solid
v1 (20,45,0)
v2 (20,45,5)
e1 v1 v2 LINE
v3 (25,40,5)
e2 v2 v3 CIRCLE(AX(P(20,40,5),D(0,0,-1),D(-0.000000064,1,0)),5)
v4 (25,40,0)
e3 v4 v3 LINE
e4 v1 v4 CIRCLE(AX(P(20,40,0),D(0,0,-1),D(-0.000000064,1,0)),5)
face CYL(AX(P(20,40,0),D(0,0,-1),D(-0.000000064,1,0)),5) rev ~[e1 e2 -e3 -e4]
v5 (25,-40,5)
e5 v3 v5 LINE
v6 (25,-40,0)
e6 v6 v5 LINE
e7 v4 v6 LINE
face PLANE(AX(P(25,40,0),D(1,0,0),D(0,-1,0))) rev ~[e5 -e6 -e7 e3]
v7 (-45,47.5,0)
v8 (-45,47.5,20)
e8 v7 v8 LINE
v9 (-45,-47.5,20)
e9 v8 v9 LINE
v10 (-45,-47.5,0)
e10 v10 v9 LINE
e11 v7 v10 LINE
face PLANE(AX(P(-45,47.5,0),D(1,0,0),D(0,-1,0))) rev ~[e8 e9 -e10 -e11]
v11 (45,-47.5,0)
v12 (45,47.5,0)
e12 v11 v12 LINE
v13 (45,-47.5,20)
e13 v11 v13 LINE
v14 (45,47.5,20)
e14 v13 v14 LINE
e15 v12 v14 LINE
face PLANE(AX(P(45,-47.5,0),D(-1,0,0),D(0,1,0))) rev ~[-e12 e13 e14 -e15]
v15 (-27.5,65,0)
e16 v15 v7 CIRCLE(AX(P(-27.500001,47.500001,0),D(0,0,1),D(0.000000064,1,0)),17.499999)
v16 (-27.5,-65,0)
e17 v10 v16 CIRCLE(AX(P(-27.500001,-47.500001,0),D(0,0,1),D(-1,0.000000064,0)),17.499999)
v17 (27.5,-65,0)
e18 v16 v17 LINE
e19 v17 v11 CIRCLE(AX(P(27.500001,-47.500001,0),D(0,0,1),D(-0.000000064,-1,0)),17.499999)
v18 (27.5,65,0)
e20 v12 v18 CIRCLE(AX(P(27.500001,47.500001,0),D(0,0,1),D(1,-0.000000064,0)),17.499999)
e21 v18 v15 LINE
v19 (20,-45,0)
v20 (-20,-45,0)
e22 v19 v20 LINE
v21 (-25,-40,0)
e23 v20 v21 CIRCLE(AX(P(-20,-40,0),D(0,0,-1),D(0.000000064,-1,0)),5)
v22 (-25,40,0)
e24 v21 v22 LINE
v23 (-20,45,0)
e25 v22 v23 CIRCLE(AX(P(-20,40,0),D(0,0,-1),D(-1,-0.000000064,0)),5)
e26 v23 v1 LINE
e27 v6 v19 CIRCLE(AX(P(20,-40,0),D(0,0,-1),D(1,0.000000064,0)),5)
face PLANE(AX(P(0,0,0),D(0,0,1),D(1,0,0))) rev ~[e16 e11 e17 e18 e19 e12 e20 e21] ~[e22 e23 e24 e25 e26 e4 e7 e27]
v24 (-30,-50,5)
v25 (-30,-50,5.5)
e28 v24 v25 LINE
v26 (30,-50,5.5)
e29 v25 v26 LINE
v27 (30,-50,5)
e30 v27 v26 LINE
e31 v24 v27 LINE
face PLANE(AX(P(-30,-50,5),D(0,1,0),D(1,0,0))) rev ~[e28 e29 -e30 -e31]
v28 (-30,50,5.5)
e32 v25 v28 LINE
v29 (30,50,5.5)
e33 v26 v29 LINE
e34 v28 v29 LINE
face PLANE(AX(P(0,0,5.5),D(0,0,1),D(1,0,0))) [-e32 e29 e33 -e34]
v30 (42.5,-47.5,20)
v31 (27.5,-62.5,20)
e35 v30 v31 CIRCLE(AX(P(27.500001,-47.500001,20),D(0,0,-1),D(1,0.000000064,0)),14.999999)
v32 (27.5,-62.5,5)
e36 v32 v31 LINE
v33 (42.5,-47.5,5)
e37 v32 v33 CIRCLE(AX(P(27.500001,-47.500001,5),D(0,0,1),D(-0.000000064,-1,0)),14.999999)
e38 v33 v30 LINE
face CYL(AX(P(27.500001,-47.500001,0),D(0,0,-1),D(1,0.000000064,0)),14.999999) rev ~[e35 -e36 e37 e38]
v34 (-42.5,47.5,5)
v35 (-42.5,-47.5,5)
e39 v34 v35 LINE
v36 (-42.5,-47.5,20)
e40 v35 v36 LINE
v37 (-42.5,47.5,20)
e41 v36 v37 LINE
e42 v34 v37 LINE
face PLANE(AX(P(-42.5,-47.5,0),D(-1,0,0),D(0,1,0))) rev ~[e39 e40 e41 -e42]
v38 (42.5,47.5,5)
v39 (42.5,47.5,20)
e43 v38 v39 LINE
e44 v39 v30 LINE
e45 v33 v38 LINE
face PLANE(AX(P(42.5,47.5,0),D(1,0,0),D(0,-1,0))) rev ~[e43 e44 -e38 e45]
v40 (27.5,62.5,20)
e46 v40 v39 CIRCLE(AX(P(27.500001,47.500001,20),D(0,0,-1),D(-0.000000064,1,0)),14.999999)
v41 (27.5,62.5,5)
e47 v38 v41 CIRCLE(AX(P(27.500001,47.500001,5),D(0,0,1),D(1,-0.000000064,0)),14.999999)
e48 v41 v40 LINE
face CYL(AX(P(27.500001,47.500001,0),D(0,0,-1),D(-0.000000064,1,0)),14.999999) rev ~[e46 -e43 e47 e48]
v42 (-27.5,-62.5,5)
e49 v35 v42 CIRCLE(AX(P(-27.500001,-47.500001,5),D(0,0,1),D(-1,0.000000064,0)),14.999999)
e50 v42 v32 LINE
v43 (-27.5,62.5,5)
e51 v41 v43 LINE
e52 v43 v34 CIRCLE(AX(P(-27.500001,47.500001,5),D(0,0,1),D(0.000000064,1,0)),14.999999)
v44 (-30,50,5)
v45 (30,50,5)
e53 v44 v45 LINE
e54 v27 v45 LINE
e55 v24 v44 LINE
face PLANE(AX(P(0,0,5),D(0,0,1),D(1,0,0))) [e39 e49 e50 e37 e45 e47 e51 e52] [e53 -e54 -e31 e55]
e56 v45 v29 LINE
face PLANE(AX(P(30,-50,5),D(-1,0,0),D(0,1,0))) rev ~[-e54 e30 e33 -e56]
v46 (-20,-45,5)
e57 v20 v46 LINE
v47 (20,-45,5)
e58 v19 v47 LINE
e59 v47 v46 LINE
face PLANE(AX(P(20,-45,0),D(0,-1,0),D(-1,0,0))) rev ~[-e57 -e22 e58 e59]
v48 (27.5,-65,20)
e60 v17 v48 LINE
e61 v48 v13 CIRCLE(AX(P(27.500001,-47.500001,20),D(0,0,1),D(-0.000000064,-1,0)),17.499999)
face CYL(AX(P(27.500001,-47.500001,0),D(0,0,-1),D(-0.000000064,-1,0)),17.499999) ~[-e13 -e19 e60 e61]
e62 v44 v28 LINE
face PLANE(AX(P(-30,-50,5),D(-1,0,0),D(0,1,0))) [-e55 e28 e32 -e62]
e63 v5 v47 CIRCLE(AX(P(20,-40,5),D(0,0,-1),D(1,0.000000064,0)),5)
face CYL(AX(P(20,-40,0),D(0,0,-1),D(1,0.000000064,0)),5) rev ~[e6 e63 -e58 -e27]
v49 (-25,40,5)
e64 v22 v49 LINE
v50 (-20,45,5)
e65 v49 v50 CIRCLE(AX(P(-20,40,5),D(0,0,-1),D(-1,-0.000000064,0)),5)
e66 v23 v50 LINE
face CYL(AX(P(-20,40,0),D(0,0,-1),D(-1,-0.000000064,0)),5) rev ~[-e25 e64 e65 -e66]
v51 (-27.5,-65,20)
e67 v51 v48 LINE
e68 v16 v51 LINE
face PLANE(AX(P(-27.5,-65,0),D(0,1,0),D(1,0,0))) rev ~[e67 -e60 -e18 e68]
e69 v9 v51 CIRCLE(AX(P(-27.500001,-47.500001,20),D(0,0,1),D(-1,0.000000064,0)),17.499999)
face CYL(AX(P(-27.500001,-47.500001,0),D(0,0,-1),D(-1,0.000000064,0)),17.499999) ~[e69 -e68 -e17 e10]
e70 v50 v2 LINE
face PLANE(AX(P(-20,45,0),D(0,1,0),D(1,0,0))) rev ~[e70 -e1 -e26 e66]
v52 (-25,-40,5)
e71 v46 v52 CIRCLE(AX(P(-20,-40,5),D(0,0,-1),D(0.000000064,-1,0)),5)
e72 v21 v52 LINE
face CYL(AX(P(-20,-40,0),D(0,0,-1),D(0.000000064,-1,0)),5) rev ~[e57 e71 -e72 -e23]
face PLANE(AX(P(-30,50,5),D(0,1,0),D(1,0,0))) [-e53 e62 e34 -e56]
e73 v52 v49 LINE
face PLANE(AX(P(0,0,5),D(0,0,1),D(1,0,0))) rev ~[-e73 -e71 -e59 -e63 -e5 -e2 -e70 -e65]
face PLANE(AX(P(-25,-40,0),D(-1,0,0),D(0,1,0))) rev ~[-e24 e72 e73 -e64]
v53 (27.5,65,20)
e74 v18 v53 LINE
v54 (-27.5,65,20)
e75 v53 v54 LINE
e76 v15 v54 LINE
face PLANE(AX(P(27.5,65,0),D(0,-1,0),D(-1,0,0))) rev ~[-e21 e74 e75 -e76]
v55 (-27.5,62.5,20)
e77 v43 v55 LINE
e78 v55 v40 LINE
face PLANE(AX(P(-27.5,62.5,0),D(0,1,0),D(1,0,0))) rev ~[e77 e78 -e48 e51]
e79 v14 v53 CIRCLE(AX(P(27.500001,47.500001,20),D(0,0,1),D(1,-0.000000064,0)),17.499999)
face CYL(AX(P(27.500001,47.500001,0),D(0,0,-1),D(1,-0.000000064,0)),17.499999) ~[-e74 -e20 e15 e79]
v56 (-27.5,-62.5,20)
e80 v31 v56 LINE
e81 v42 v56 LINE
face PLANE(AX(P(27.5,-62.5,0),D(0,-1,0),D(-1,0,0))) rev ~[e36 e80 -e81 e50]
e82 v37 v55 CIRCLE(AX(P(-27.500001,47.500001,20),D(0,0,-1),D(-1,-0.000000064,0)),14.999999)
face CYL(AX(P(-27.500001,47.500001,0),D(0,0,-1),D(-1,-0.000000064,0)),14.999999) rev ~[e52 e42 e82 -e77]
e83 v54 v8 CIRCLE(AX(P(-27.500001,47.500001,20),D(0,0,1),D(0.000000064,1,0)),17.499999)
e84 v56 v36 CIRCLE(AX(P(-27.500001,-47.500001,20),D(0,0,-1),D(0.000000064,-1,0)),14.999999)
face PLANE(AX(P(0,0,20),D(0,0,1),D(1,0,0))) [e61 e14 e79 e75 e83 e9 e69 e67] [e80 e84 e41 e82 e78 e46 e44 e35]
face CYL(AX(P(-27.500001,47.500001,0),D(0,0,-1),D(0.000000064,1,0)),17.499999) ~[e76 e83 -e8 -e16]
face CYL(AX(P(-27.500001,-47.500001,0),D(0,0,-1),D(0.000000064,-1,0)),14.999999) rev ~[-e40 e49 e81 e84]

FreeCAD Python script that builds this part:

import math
import FreeCAD as App
import Part
import Sketcher


def add_polygon(sketch, points):
    """Adds a closed chain of lines whose ends are joined by coincident constraints."""
    first, n = sketch.GeometryCount, len(points)
    for a, b in zip(points, points[1:] + points[:1]):
        sketch.addGeometry(Part.LineSegment(App.Vector(*a, 0), App.Vector(*b, 0)), False)
    for i in range(n):
        sketch.addConstraint(Sketcher.Constraint("Coincident", first + i, 2, first + (i + 1) % n, 1))

doc = App.newDocument("Part")
body = doc.addObject("PartDesign::Body", "Body")

sketch1 = body.newObject("Sketcher::SketchObject", "Sketch")
sketch1.AttachmentSupport = (doc.getObject("XY_Plane"), [""])
sketch1.MapMode = "FlatFace"
sketch1.addGeometry([
    Part.LineSegment(App.Vector(45, -48, 0), App.Vector(45, 48, 0)),
    Part.ArcOfCircle(Part.Circle(App.Vector(28, 48, 0), App.Vector(0, 0, 1), 17), math.radians(0), math.radians(90)),
    Part.LineSegment(App.Vector(28, 65, 0), App.Vector(-28, 65, 0)),
    Part.ArcOfCircle(Part.Circle(App.Vector(-28, 48, 0), App.Vector(0, 0, 1), 17), math.radians(90), math.radians(180)),
    Part.LineSegment(App.Vector(-45, 48, 0), App.Vector(-45, -48, 0)),
    Part.ArcOfCircle(Part.Circle(App.Vector(-28, -48, 0), App.Vector(0, 0, 1), 17), math.radians(180), math.radians(270)),
    Part.LineSegment(App.Vector(-28, -65, 0), App.Vector(28, -65, 0)),
    Part.ArcOfCircle(Part.Circle(App.Vector(28, -48, 0), App.Vector(0, 0, 1), 17), math.radians(-90), math.radians(0)),
    Part.ArcOfCircle(Part.Circle(App.Vector(-28, 48, 0), App.Vector(0, 0, 1), 15), math.radians(90), math.radians(180)),
    Part.LineSegment(App.Vector(-28, 62, 0), App.Vector(28, 62, 0)),
    Part.ArcOfCircle(Part.Circle(App.Vector(28, 48, 0), App.Vector(0, 0, 1), 15), math.radians(0), math.radians(90)),
    Part.LineSegment(App.Vector(42, 48, 0), App.Vector(42, -48, 0)),
    Part.ArcOfCircle(Part.Circle(App.Vector(28, -48, 0), App.Vector(0, 0, 1), 15), math.radians(-90), math.radians(0)),
    Part.LineSegment(App.Vector(28, -62, 0), App.Vector(-28, -62, 0)),
    Part.ArcOfCircle(Part.Circle(App.Vector(-28, -48, 0), App.Vector(0, 0, 1), 15), math.radians(180), math.radians(270)),
    Part.LineSegment(App.Vector(-42, -48, 0), App.Vector(-42, 48, 0)),
], False)
sketch1.addConstraint([
    Sketcher.Constraint("Tangent", 0, 2, 1, 1),
    Sketcher.Constraint("Tangent", 1, 2, 2, 1),
    Sketcher.Constraint("Tangent", 2, 2, 3, 1),
    Sketcher.Constraint("Tangent", 3, 2, 4, 1),
    Sketcher.Constraint("Tangent", 4, 2, 5, 1),
    Sketcher.Constraint("Tangent", 5, 2, 6, 1),
    Sketcher.Constraint("Tangent", 6, 2, 7, 1),
    Sketcher.Constraint("Tangent", 7, 2, 0, 1),
    Sketcher.Constraint("Tangent", 8, 1, 9, 1),
    Sketcher.Constraint("Tangent", 9, 2, 10, 2),
    Sketcher.Constraint("Tangent", 10, 1, 11, 1),
    Sketcher.Constraint("Tangent", 11, 2, 12, 2),
    Sketcher.Constraint("Tangent", 12, 1, 13, 1),
    Sketcher.Constraint("Tangent", 13, 2, 14, 2),
    Sketcher.Constraint("Tangent", 14, 1, 15, 1),
    Sketcher.Constraint("Tangent", 15, 2, 8, 2),
    Sketcher.Constraint("Vertical", 0),
    Sketcher.Constraint("Horizontal", 2),
    Sketcher.Constraint("Vertical", 4),
    Sketcher.Constraint("Horizontal", 6),
    Sketcher.Constraint("Horizontal", 9),
    Sketcher.Constraint("Vertical", 11),
    Sketcher.Constraint("Horizontal", 13),
    Sketcher.Constraint("Vertical", 15),
    Sketcher.Constraint("Coincident", 8, 3, 3, 3),
    Sketcher.Constraint("Coincident", 10, 3, 1, 3),
    Sketcher.Constraint("Coincident", 12, 3, 7, 3),
    Sketcher.Constraint("Equal", 1, 3),
    Sketcher.Constraint("Equal", 3, 5),
    Sketcher.Constraint("Equal", 5, 7),
    Sketcher.Constraint("Equal", 12, 14),
    Sketcher.Constraint("Symmetric", 1, 3, 5, 3, -1, 1),
    Sketcher.Constraint("Radius", 8, 14.999999),
    Sketcher.Constraint("Radius", 1, 17.499999),
    Sketcher.Constraint("DistanceX", 2, 2, 2, 1, 55.0),
    Sketcher.Constraint("DistanceY", 0, 1, 0, 2, 95.0),
])
pad1 = body.newObject("PartDesign::Pad", "Pad")
pad1.Profile = sketch1
pad1.Length = 20

sketch2 = body.newObject("Sketcher::SketchObject", "Sketch001")
sketch2.AttachmentSupport = (doc.getObject("XY_Plane"), [""])
sketch2.MapMode = "FlatFace"
sketch2.addGeometry([
    Part.ArcOfCircle(Part.Circle(App.Vector(27.5, 47.5, 0), App.Vector(0, 0, 1), 15), math.radians(0), math.radians(90)),
    Part.LineSegment(App.Vector(27.5, 62.5, 0), App.Vector(-27.5, 62.5, 0)),
    Part.ArcOfCircle(Part.Circle(App.Vector(-27.5, 47.5, 0), App.Vector(0, 0, 1), 15), math.radians(90), math.radians(180)),
    Part.LineSegment(App.Vector(-42.5, 47.5, 0), App.Vector(-42.5, -47.5, 0)),
    Part.ArcOfCircle(Part.Circle(App.Vector(-27.5, -47.5, 0), App.Vector(0, 0, 1), 15), math.radians(180), math.radians(270)),
    Part.LineSegment(App.Vector(-27.5, -62.5, 0), App.Vector(27.5, -62.5, 0)),
    Part.ArcOfCircle(Part.Circle(App.Vector(27.5, -47.5, 0), App.Vector(0, 0, 1), 15), math.radians(-90), math.radians(0)),
    Part.LineSegment(App.Vector(42.5, -47.5, 0), App.Vector(42.5, 47.5, 0)),
    Part.LineSegment(App.Vector(-20, 45, 0), App.Vector(20, 45, 0)),
    Part.ArcOfCircle(Part.Circle(App.Vector(20, 40, 0), App.Vector(0, 0, 1), 5), math.radians(0), math.radians(90)),
    Part.LineSegment(App.Vector(25, 40, 0), App.Vector(25, -40, 0)),
    Part.ArcOfCircle(Part.Circle(App.Vector(20, -40, 0), App.Vector(0, 0, 1), 5), math.radians(-90), math.radians(0)),
    Part.LineSegment(App.Vector(20, -45, 0), App.Vector(-20, -45, 0)),
    Part.ArcOfCircle(Part.Circle(App.Vector(-20, -40, 0), App.Vector(0, 0, 1), 5), math.radians(180), math.radians(270)),
    Part.LineSegment(App.Vector(-25, -40, 0), App.Vector(-25, 40, 0)),
    Part.ArcOfCircle(Part.Circle(App.Vector(-20, 40, 0), App.Vector(0, 0, 1), 5), math.radians(90), math.radians(180)),
], False)
sketch2.addConstraint([
    Sketcher.Constraint("Tangent", 0, 2, 1, 1),
    Sketcher.Constraint("Tangent", 1, 2, 2, 1),
    Sketcher.Constraint("Tangent", 2, 2, 3, 1),
    Sketcher.Constraint("Tangent", 3, 2, 4, 1),
    Sketcher.Constraint("Tangent", 4, 2, 5, 1),
    Sketcher.Constraint("Tangent", 5, 2, 6, 1),
    Sketcher.Constraint("Tangent", 6, 2, 7, 1),
    Sketcher.Constraint("Tangent", 7, 2, 0, 1),
    Sketcher.Constraint("Tangent", 8, 2, 9, 2),
    Sketcher.Constraint("Tangent", 9, 1, 10, 1),
    Sketcher.Constraint("Tangent", 10, 2, 11, 2),
    Sketcher.Constraint("Tangent", 11, 1, 12, 1),
    Sketcher.Constraint("Tangent", 12, 2, 13, 2),
    Sketcher.Constraint("Tangent", 13, 1, 14, 1),
    Sketcher.Constraint("Tangent", 14, 2, 15, 2),
    Sketcher.Constraint("Tangent", 15, 1, 8, 1),
    Sketcher.Constraint("Horizontal", 1),
    Sketcher.Constraint("Vertical", 3),
    Sketcher.Constraint("Horizontal", 5),
    Sketcher.Constraint("Vertical", 7),
    Sketcher.Constraint("Horizontal", 8),
    Sketcher.Constraint("Vertical", 10),
    Sketcher.Constraint("Horizontal", 12),
    Sketcher.Constraint("Vertical", 14),
    Sketcher.Constraint("Equal", 0, 2),
    Sketcher.Constraint("Equal", 2, 4),
    Sketcher.Constraint("Equal", 4, 6),
    Sketcher.Constraint("Equal", 9, 11),
    Sketcher.Constraint("Equal", 11, 13),
    Sketcher.Constraint("Equal", 13, 15),
    Sketcher.Constraint("Symmetric", 0, 3, 4, 3, -1, 1),
    Sketcher.Constraint("Symmetric", 9, 3, 13, 3, -1, 1),
    Sketcher.Constraint("Radius", 0, 14.999999),
    Sketcher.Constraint("Radius", 9, 5.0),
    Sketcher.Constraint("DistanceX", 1, 2, 1, 1, 55.0),
    Sketcher.Constraint("DistanceX", 8, 1, 8, 2, 40.0),
    Sketcher.Constraint("DistanceY", 3, 2, 3, 1, 95.0),
    Sketcher.Constraint("DistanceY", 10, 2, 10, 1, 80.0),
])
pad2 = body.newObject("PartDesign::Pad", "Pad001")
pad2.Profile = sketch2
pad2.Length = 5

sketch3 = body.newObject("Sketcher::SketchObject", "Sketch002")
sketch3.AttachmentSupport = (doc.getObject("XY_Plane"), [""])
sketch3.MapMode = "FlatFace"
sketch3.AttachmentOffset = App.Placement(App.Vector(0, 0, 5), App.Rotation())
add_polygon(sketch3, [(-30, 50), (-30, -50), (30, -50), (30, 50)])
sketch3.addConstraint([
    Sketcher.Constraint("Vertical", 0),
    Sketcher.Constraint("Horizontal", 1),
    Sketcher.Constraint("Vertical", 2),
    Sketcher.Constraint("Horizontal", 3),
    Sketcher.Constraint("Symmetric", 0, 2, 2, 2, -1, 1),
    Sketcher.Constraint("DistanceX", 1, 1, 1, 2, 60.0),
    Sketcher.Constraint("DistanceY", 0, 2, 0, 1, 100.0),
])
pad3 = body.newObject("PartDesign::Pad", "Pad002")
pad3.Profile = sketch3
pad3.Length = 0.5

doc.recompute()
